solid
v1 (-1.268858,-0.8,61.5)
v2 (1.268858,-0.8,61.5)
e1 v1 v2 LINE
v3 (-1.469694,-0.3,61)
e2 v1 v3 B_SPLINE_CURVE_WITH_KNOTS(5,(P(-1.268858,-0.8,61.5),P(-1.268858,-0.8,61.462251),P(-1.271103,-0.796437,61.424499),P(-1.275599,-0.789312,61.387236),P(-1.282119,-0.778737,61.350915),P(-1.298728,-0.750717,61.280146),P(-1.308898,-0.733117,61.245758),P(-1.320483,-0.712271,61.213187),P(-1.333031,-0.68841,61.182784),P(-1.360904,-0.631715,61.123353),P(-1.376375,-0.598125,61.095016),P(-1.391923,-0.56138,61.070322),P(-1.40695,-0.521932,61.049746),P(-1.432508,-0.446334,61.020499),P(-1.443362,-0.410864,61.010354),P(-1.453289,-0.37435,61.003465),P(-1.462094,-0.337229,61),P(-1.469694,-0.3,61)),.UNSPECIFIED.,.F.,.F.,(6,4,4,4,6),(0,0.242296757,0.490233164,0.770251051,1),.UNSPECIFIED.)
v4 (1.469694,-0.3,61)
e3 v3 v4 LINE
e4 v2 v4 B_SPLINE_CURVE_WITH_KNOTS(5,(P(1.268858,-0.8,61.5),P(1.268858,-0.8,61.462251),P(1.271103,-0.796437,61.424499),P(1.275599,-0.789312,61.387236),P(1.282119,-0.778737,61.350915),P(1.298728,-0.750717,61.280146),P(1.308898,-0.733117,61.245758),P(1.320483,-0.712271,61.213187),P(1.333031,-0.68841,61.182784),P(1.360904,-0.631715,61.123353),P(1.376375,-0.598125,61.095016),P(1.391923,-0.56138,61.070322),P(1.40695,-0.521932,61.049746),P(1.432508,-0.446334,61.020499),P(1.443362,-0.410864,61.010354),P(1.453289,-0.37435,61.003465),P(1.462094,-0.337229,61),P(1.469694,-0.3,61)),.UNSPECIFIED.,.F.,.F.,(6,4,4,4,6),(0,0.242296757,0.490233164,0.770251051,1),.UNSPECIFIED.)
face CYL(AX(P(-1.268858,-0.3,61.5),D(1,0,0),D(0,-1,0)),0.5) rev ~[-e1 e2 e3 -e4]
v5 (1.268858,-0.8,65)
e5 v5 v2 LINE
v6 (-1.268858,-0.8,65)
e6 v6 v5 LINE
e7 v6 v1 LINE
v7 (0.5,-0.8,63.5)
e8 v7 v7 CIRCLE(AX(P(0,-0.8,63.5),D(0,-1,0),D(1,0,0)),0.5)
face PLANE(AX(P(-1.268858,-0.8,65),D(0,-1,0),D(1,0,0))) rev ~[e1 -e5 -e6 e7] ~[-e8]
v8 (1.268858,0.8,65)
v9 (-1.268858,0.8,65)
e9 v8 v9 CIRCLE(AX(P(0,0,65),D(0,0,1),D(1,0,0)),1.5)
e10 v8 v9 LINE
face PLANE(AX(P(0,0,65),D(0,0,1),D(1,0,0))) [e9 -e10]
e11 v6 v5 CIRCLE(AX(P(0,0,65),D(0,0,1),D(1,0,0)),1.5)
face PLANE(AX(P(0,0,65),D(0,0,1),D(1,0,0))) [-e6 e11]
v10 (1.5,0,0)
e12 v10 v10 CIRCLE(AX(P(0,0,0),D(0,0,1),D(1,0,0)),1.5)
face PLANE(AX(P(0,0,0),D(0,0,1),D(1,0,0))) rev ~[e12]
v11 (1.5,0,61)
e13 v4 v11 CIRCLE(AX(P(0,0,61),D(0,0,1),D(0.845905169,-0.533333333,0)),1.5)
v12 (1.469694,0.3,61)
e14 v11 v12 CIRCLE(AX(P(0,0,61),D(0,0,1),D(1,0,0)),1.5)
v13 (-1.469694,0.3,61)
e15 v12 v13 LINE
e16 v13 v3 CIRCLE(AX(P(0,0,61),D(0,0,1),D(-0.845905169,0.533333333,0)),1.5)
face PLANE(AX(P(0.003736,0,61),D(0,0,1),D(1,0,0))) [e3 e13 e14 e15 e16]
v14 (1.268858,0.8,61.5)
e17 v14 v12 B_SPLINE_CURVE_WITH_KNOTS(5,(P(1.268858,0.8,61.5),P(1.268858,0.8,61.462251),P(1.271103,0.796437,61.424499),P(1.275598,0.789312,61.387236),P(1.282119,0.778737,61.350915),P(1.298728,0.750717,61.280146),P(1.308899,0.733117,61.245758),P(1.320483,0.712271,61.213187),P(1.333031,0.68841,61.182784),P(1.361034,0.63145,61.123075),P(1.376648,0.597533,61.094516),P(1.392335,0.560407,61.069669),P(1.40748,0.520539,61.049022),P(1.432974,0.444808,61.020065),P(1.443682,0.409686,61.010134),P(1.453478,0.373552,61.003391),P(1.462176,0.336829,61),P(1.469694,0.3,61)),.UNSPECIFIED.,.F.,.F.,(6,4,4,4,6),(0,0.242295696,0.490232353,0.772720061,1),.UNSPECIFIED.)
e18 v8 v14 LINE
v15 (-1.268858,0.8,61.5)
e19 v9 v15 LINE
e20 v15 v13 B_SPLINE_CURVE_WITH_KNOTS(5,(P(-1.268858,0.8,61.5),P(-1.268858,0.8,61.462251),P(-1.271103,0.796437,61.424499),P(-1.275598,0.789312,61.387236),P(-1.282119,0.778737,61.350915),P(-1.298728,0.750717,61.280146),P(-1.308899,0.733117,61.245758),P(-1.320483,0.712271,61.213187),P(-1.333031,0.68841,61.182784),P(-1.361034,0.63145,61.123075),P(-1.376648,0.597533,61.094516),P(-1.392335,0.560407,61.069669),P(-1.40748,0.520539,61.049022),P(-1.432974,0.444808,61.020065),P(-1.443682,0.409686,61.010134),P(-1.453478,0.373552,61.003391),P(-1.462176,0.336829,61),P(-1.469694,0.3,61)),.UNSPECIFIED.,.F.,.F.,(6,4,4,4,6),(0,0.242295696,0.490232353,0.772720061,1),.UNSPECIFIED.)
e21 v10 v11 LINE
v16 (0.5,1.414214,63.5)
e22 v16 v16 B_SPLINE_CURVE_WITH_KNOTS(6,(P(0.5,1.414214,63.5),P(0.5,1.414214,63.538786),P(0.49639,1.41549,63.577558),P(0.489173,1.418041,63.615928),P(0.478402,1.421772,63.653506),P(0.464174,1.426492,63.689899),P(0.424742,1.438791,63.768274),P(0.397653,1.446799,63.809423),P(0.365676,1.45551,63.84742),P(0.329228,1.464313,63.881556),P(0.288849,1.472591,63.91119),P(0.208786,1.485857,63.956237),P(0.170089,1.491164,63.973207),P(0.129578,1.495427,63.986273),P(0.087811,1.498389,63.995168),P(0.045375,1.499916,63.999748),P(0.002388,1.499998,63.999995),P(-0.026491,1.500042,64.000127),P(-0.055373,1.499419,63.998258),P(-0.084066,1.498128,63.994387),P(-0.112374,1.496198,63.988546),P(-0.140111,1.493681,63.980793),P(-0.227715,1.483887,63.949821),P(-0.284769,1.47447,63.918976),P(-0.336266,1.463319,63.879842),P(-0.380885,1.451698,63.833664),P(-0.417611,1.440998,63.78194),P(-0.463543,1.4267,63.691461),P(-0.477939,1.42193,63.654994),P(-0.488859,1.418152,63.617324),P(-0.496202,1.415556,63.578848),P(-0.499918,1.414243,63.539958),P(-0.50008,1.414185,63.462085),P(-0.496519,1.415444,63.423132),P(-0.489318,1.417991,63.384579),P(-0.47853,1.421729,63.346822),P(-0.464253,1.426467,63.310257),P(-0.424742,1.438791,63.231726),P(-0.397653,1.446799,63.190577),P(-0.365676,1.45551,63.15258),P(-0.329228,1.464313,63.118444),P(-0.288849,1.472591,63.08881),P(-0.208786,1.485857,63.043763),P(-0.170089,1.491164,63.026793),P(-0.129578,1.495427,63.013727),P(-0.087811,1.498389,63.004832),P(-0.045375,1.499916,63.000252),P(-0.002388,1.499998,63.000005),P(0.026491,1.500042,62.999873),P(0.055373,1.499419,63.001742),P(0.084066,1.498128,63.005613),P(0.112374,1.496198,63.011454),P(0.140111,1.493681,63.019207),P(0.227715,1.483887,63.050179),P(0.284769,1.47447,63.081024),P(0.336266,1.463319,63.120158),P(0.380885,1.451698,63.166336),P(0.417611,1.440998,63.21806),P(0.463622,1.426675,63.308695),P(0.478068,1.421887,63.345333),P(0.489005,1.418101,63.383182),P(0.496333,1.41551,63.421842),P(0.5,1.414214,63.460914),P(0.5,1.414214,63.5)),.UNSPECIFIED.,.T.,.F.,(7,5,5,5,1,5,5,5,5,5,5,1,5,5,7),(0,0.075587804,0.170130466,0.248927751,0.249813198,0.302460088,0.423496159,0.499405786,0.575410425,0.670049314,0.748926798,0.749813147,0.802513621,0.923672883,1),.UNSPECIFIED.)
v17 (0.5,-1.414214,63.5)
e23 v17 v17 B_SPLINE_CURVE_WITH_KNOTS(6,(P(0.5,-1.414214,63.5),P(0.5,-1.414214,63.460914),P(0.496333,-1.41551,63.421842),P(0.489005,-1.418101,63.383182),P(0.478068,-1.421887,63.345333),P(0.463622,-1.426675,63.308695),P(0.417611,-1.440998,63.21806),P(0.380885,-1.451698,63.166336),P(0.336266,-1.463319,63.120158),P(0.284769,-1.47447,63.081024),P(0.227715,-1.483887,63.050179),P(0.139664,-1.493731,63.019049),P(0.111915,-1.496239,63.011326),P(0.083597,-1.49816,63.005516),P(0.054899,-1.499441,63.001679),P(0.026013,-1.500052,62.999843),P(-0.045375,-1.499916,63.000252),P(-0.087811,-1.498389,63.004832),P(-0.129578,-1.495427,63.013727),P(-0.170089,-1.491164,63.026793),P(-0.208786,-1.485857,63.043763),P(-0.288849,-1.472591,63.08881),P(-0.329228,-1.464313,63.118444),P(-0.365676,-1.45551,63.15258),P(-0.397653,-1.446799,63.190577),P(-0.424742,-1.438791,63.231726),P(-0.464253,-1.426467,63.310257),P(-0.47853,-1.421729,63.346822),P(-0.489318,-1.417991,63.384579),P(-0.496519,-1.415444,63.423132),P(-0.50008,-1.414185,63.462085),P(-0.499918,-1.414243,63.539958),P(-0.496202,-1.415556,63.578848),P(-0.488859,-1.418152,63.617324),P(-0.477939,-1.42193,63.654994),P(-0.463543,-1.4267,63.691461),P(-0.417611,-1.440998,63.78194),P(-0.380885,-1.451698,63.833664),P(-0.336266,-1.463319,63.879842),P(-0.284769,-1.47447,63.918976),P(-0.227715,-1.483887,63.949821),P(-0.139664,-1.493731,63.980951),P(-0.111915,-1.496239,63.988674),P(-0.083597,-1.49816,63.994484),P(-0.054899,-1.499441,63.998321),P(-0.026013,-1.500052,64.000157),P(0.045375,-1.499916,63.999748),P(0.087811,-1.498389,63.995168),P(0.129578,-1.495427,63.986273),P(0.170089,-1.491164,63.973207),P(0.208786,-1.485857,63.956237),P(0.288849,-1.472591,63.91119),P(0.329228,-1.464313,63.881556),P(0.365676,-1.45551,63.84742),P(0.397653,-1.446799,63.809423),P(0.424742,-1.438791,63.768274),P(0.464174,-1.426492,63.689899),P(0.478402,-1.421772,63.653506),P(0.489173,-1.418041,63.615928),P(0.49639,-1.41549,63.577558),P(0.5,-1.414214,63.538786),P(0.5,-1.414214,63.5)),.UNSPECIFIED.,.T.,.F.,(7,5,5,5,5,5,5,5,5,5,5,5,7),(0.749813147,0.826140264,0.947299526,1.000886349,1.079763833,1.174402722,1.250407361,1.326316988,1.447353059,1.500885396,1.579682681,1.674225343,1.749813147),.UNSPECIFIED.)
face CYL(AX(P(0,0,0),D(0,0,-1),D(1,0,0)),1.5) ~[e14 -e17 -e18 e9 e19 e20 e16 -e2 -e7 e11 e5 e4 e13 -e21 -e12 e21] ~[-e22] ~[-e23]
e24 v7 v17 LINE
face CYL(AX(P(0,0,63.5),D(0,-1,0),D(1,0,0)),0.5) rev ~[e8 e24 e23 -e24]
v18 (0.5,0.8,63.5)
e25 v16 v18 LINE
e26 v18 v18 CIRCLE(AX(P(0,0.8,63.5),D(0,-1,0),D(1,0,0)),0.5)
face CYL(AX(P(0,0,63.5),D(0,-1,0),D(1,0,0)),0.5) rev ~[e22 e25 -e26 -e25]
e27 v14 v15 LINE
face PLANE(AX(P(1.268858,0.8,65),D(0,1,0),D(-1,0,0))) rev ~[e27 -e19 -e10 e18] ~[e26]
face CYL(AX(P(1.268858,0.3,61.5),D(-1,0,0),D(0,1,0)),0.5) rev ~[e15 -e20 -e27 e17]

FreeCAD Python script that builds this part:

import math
import FreeCAD as App
import Part
import Sketcher
Q = App.Units.Quantity


def edges_at(feature, points):
    """Names of the edges that pass closest to the given points."""
    edges = feature.Shape.Edges
    near = lambda p: min(range(len(edges)), key=lambda i: edges[i].distToShape(Part.Vertex(*p))[0])
    return sorted({f"Edge{near(p) + 1}" for p in points})

doc = App.newDocument("Part")
params = doc.addObject("Spreadsheet::Sheet", "Params")
for row, (alias, value) in enumerate([
    ("sketch1_diameter", "3 mm"),
    ("pad1_length", "65 mm"),
    ("sketch2_radius", "1.5 mm"),
    ("pocket1_length", "4 mm"),
    ("sketch3_diameter", "1 mm"),
    ("pocket2_length", "3 mm"),
    ("fillet_radius", "0.5 mm"),
], start=1):
    params.set(f"A{row}", alias)
    params.set(f"B{row}", "=" + value)
    params.setAlias(f"B{row}", alias)

body = doc.addObject("PartDesign::Body", "Body")

# Sketch on XY plane
sketch1 = body.newObject("Sketcher::SketchObject", "Sketch")
sketch1.AttachmentSupport = (doc.getObject("XY_Plane"), [""])
sketch1.MapMode = "FlatFace"
sketch1.addGeometry(Part.Circle(App.Vector(0, 0, 0), App.Vector(0, 0, 1), 1.5), False)
sketch1.addConstraint(Sketcher.Constraint("Coincident", 0, 3, -1, 1))
sketch1.addConstraint(Sketcher.Constraint("Diameter", 0, Q("3 mm")))
sketch1.setExpression("Constraints[1]", "Params.sketch1_diameter")
pad1 = body.newObject("PartDesign::Pad", "Pad")
pad1.Profile = sketch1
pad1.setExpression("Length", "Params.pad1_length")

# Sketch on XY plane
sketch2 = body.newObject("Sketcher::SketchObject", "Sketch001")
sketch2.AttachmentSupport = (doc.getObject("XY_Plane"), [""])
sketch2.MapMode = "FlatFace"
sketch2.AttachmentOffset = App.Placement(App.Vector(0, 0, 65), App.Rotation())
sketch2.addGeometry(Part.LineSegment(App.Vector(1.268858, 0.8, 0), App.Vector(-1.268858, 0.8, 0)), False)
sketch2.addGeometry(Part.ArcOfCircle(Part.Circle(App.Vector(0, 0, 0), App.Vector(0, 0, 1), 1.5), math.radians(147.769047), math.radians(212.230953)), False)
sketch2.addGeometry(Part.LineSegment(App.Vector(-1.268858, -0.8, 0), App.Vector(1.268858, -0.8, 0)), False)
sketch2.addGeometry(Part.ArcOfCircle(Part.Circle(App.Vector(0, 0, 0), App.Vector(0, 0, 1), 1.5), math.radians(-32.230953), math.radians(0)), False)
sketch2.addGeometry(Part.ArcOfCircle(Part.Circle(App.Vector(0, 0, 0), App.Vector(0, 0, 1), 1.5), math.radians(0), math.radians(32.230953)), False)
sketch2.addConstraint(Sketcher.Constraint("Coincident", 0, 2, 1, 1))
sketch2.addConstraint(Sketcher.Constraint("Coincident", 1, 2, 2, 1))
sketch2.addConstraint(Sketcher.Constraint("Coincident", 2, 2, 3, 1))
sketch2.addConstraint(Sketcher.Constraint("Tangent", 3, 2, 4, 1))
sketch2.addConstraint(Sketcher.Constraint("Coincident", 4, 2, 0, 1))
sketch2.addConstraint(Sketcher.Constraint("Horizontal", 0))
sketch2.addConstraint(Sketcher.Constraint("Horizontal", 2))
sketch2.addConstraint(Sketcher.Constraint("Coincident", 1, 3, -1, 1))
sketch2.addConstraint(Sketcher.Constraint("Coincident", 3, 3, -1, 1))
sketch2.addConstraint(Sketcher.Constraint("Equal", 1, 3))
sketch2.addConstraint(Sketcher.Constraint("Equal", 3, 4))
sketch2.addConstraint(Sketcher.Constraint("PointOnObject", 3, 2, -1))
sketch2.addConstraint(Sketcher.Constraint("Vertical", 0, 2, 1, 2))
sketch2.addConstraint(Sketcher.Constraint("Radius", 1, Q("1.5 mm")))
sketch2.addConstraint(Sketcher.Constraint("DistanceY", -1, 1, 0, 2, Q("0.8 mm")))
sketch2.setExpression("Constraints[13]", "Params.sketch2_radius")
pocket1 = body.newObject("PartDesign::Pocket", "Pocket")
pocket1.Profile = sketch2
pocket1.setExpression("Length", "Params.pocket1_length")

# Sketch on XZ plane
sketch3 = body.newObject("Sketcher::SketchObject", "Sketch002")
sketch3.AttachmentSupport = (doc.getObject("XZ_Plane"), [""])
sketch3.MapMode = "FlatFace"
sketch3.addGeometry(Part.Circle(App.Vector(0, 63.5, 0), App.Vector(0, 0, 1), 0.5), False)
sketch3.addConstraint(Sketcher.Constraint("PointOnObject", 0, 3, -2))
sketch3.addConstraint(Sketcher.Constraint("Diameter", 0, Q("1 mm")))
sketch3.addConstraint(Sketcher.Constraint("DistanceY", -1, 1, 0, 3, Q("63.5 mm")))
sketch3.setExpression("Constraints[1]", "Params.sketch3_diameter")
pocket2 = body.newObject("PartDesign::Pocket", "Pocket001")
pocket2.Profile = sketch3
pocket2.setExpression("Length", "Params.pocket2_length")
pocket2.Midplane = True
doc.recompute()

fillet = body.newObject("PartDesign::Fillet", "Fillet")
fillet.Base = (pocket2, edges_at(pocket2, [(0, -0.8, 61), (0, 0.8, 61)]))
fillet.setExpression("Radius", "Params.fillet_radius")

doc.recompute()
